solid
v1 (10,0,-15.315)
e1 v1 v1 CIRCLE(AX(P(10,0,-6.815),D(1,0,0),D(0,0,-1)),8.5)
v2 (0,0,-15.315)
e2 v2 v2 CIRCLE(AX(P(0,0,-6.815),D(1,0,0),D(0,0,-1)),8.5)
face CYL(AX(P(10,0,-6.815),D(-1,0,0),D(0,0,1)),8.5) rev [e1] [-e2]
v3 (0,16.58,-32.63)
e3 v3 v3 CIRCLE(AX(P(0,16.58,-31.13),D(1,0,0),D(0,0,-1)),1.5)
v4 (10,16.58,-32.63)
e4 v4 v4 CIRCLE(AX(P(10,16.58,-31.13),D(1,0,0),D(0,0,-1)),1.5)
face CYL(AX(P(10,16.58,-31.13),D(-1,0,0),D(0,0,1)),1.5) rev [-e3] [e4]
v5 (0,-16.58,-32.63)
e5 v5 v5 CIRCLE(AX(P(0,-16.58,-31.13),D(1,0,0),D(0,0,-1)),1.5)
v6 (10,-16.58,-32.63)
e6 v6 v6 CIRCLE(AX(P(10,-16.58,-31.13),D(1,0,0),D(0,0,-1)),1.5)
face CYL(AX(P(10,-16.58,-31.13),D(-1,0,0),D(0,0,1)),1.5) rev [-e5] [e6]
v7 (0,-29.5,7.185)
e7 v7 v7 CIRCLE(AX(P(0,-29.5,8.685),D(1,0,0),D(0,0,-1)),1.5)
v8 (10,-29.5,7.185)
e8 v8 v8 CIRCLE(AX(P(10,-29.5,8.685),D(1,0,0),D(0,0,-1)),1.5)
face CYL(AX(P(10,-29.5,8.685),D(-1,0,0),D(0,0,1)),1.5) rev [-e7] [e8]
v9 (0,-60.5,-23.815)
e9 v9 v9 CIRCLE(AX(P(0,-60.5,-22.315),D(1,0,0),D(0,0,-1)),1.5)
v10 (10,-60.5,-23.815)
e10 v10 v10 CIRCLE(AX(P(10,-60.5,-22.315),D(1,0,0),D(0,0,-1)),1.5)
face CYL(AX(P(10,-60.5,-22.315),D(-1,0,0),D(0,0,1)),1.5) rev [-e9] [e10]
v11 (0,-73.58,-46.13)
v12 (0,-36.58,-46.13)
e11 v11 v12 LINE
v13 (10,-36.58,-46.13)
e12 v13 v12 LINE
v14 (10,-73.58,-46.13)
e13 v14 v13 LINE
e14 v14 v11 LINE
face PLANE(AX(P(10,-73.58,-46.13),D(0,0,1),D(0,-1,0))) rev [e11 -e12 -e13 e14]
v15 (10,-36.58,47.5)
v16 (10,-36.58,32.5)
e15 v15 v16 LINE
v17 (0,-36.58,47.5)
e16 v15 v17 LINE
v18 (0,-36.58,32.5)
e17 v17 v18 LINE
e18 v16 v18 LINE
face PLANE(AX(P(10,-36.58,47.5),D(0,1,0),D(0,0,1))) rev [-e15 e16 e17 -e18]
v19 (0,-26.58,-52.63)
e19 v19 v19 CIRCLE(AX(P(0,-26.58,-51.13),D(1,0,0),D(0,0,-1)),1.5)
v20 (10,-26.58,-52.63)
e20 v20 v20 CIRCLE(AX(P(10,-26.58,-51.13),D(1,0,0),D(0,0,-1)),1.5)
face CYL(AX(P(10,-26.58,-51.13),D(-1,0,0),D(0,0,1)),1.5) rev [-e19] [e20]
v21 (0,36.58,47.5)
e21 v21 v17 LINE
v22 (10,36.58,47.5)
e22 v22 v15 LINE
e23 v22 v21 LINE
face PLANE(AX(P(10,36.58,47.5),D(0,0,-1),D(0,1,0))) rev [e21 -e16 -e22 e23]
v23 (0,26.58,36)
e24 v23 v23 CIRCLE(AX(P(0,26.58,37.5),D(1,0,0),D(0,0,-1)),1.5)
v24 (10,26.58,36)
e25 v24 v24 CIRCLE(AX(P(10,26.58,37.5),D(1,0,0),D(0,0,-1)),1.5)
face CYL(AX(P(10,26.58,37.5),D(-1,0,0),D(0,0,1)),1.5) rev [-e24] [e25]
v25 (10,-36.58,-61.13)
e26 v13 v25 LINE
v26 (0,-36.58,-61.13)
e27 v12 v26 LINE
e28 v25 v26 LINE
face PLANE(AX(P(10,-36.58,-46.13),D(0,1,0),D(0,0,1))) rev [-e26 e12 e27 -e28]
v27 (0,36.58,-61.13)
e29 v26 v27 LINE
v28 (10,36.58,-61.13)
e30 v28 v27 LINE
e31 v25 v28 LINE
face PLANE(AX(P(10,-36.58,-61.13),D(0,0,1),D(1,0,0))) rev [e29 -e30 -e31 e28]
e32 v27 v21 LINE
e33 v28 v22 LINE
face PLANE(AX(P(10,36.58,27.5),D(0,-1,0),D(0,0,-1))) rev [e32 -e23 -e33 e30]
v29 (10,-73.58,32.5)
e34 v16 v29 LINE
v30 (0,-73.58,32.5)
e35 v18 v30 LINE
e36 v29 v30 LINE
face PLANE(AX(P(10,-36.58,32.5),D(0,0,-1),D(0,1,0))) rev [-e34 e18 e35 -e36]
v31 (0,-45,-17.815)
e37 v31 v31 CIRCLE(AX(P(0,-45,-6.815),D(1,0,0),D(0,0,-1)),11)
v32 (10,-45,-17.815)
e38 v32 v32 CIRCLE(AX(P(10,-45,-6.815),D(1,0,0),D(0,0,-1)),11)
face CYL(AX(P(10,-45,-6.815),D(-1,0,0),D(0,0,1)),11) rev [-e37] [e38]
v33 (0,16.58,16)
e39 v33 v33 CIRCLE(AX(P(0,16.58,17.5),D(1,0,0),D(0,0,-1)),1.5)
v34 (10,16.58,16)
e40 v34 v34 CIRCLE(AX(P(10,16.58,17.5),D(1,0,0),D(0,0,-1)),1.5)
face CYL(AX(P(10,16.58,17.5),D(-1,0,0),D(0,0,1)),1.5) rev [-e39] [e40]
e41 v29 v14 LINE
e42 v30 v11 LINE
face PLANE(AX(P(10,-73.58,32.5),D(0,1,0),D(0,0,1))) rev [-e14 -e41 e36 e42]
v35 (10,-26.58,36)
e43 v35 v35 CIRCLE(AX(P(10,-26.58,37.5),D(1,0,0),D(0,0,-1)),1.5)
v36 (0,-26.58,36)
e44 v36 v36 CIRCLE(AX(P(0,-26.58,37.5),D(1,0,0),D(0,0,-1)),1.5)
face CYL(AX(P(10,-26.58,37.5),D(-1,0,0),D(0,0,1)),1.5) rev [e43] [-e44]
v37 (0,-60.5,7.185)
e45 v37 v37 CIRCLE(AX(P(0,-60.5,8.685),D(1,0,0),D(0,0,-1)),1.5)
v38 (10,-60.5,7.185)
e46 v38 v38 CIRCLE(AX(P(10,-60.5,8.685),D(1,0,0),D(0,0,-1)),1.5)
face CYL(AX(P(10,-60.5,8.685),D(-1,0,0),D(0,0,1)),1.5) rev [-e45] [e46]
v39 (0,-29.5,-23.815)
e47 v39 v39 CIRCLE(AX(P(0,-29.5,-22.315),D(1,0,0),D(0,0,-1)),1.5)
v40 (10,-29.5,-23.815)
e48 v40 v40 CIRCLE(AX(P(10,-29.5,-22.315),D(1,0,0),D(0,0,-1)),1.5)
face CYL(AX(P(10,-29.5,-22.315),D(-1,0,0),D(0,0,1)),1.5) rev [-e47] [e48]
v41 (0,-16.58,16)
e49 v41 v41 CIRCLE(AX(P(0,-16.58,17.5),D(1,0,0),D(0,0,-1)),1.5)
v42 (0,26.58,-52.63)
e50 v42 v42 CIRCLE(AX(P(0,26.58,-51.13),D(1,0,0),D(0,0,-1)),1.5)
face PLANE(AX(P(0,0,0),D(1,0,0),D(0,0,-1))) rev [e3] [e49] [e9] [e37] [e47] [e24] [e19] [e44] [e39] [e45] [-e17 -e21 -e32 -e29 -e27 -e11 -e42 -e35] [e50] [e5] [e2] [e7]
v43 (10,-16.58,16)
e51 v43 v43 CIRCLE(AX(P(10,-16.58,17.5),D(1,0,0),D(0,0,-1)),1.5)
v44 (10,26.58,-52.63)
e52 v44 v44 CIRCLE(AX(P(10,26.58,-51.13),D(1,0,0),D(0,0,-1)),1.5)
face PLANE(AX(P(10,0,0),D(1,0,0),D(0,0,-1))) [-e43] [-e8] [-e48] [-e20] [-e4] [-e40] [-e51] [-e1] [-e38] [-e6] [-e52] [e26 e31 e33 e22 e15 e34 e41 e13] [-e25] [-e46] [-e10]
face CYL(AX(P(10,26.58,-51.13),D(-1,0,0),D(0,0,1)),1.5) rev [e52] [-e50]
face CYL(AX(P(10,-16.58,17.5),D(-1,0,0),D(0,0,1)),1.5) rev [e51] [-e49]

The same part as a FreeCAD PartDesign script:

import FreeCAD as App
import Part
import Sketcher
from FreeCAD import Vector
Q = App.Units.Quantity

doc = App.newDocument("Part")
body = doc.addObject("PartDesign::Body", "Body")

# Sketch on YZ plane
sketch1 = doc.addObject("Sketcher::SketchObject", "Sketch")
body.addObject(sketch1)
sketch1.AttachmentSupport = (doc.YZ_Plane, [""])
sketch1.MapMode = "FlatFace"
sketch1.addGeometry(Part.LineSegment(Vector(36.6, 47.5, 0), Vector(-36.6, 47.5, 0)), False)
sketch1.addGeometry(Part.LineSegment(Vector(-36.6, 47.5, 0), Vector(-36.6, 32.5, 0)), False)
sketch1.addGeometry(Part.LineSegment(Vector(-36.6, 32.5, 0), Vector(-73.6, 32.5, 0)), False)
sketch1.addGeometry(Part.LineSegment(Vector(-73.6, 32.5, 0), Vector(-73.6, -46.1, 0)), False)
sketch1.addGeometry(Part.LineSegment(Vector(-73.6, -46.1, 0), Vector(-36.6, -46.1, 0)), False)
sketch1.addGeometry(Part.LineSegment(Vector(-36.6, -46.1, 0), Vector(-36.6, -61.1, 0)), False)
sketch1.addGeometry(Part.LineSegment(Vector(-36.6, -61.1, 0), Vector(36.6, -61.1, 0)), False)
sketch1.addGeometry(Part.LineSegment(Vector(36.6, -61.1, 0), Vector(36.6, 47.5, 0)), False)
sketch1.addGeometry(Part.Circle(Vector(-60.5, 8.7, 0), Vector(0, 0, 1), 1.5), False)
sketch1.addGeometry(Part.Circle(Vector(-26.6, 37.5, 0), Vector(0, 0, 1), 1.5), False)
sketch1.addGeometry(Part.Circle(Vector(-29.5, 8.7, 0), Vector(0, 0, 1), 1.5), False)
sketch1.addGeometry(Part.Circle(Vector(-60.5, -22.3, 0), Vector(0, 0, 1), 1.5), False)
sketch1.addGeometry(Part.Circle(Vector(-45, -6.8, 0), Vector(0, 0, 1), 11), False)
sketch1.addGeometry(Part.Circle(Vector(-29.5, -22.3, 0), Vector(0, 0, 1), 1.5), False)
sketch1.addGeometry(Part.Circle(Vector(-26.6, -51.1, 0), Vector(0, 0, 1), 1.5), False)
sketch1.addGeometry(Part.Circle(Vector(-16.6, 17.5, 0), Vector(0, 0, 1), 1.5), False)
sketch1.addGeometry(Part.Circle(Vector(16.6, 17.5, 0), Vector(0, 0, 1), 1.5), False)
sketch1.addGeometry(Part.Circle(Vector(26.6, 37.5, 0), Vector(0, 0, 1), 1.5), False)
sketch1.addGeometry(Part.Circle(Vector(0, -6.8, 0), Vector(0, 0, 1), 8.5), False)
sketch1.addGeometry(Part.Circle(Vector(-16.6, -31.1, 0), Vector(0, 0, 1), 1.5), False)
sketch1.addGeometry(Part.Circle(Vector(16.6, -31.1, 0), Vector(0, 0, 1), 1.5), False)
sketch1.addGeometry(Part.Circle(Vector(26.6, -51.1, 0), Vector(0, 0, 1), 1.5), False)
sketch1.addConstraint(Sketcher.Constraint("Coincident", 0, 2, 1, 1))
sketch1.addConstraint(Sketcher.Constraint("Coincident", 1, 2, 2, 1))
sketch1.addConstraint(Sketcher.Constraint("Coincident", 2, 2, 3, 1))
sketch1.addConstraint(Sketcher.Constraint("Coincident", 3, 2, 4, 1))
sketch1.addConstraint(Sketcher.Constraint("Coincident", 4, 2, 5, 1))
sketch1.addConstraint(Sketcher.Constraint("Coincident", 5, 2, 6, 1))
sketch1.addConstraint(Sketcher.Constraint("Coincident", 6, 2, 7, 1))
sketch1.addConstraint(Sketcher.Constraint("Coincident", 7, 2, 0, 1))
sketch1.addConstraint(Sketcher.Constraint("Horizontal", 0))
sketch1.addConstraint(Sketcher.Constraint("Vertical", 1))
sketch1.addConstraint(Sketcher.Constraint("Horizontal", 2))
sketch1.addConstraint(Sketcher.Constraint("Vertical", 3))
sketch1.addConstraint(Sketcher.Constraint("Horizontal", 4))
sketch1.addConstraint(Sketcher.Constraint("Vertical", 5))
sketch1.addConstraint(Sketcher.Constraint("Horizontal", 6))
sketch1.addConstraint(Sketcher.Constraint("Vertical", 7))
sketch1.addConstraint(Sketcher.Constraint("Equal", 8, 9))
sketch1.addConstraint(Sketcher.Constraint("Equal", 9, 10))
sketch1.addConstraint(Sketcher.Constraint("Equal", 10, 11))
sketch1.addConstraint(Sketcher.Constraint("Equal", 11, 13))
sketch1.addConstraint(Sketcher.Constraint("Equal", 13, 14))
sketch1.addConstraint(Sketcher.Constraint("Equal", 14, 15))
sketch1.addConstraint(Sketcher.Constraint("Equal", 15, 16))
sketch1.addConstraint(Sketcher.Constraint("Equal", 16, 17))
sketch1.addConstraint(Sketcher.Constraint("Equal", 17, 19))
sketch1.addConstraint(Sketcher.Constraint("Equal", 19, 20))
sketch1.addConstraint(Sketcher.Constraint("Equal", 20, 21))
sketch1.addConstraint(Sketcher.Constraint("Symmetric", 15, 3, 16, 3, -2))
sketch1.addConstraint(Sketcher.Constraint("Symmetric", 9, 3, 17, 3, -2))
sketch1.addConstraint(Sketcher.Constraint("Symmetric", 19, 3, 20, 3, -2))
sketch1.addConstraint(Sketcher.Constraint("Symmetric", 14, 3, 21, 3, -2))
sketch1.addConstraint(Sketcher.Constraint("PointOnObject", 18, 3, -2))
sketch1.addConstraint(Sketcher.Constraint("Horizontal", 8, 3, 10, 3))
sketch1.addConstraint(Sketcher.Constraint("Horizontal", 11, 3, 13, 3))
sketch1.addConstraint(Sketcher.Constraint("Horizontal", 12, 3, 18, 3))
sketch1.addConstraint(Sketcher.Constraint("Vertical", 8, 3, 11, 3))
sketch1.addConstraint(Sketcher.Constraint("Vertical", 10, 3, 13, 3))
sketch1.addConstraint(Sketcher.Constraint("Vertical", 9, 3, 14, 3))
sketch1.addConstraint(Sketcher.Constraint("Vertical", 15, 3, 19, 3))
sketch1.addConstraint(Sketcher.Constraint("Vertical", 1, 2, 4, 2))
sketch1.addConstraint(Sketcher.Constraint("Equal", 1, 5))
sketch1.addConstraint(Sketcher.Constraint("Diameter", 8, Q("3 mm")))
sketch1.addConstraint(Sketcher.Constraint("Diameter", 12, Q("22 mm")))
sketch1.addConstraint(Sketcher.Constraint("Diameter", 18, Q("17 mm")))
sketch1.addConstraint(Sketcher.Constraint("DistanceX", 2, 2, 2, 1, Q("37 mm")))
sketch1.addConstraint(Sketcher.Constraint("DistanceY", 1, 2, 1, 1, Q("15 mm")))
sketch1.addConstraint(Sketcher.Constraint("DistanceX", 12, 3, -1, 1, Q("45 mm")))
sketch1.addConstraint(Sketcher.Constraint("DistanceX", 8, 3, 10, 3, Q("31 mm")))
sketch1.addConstraint(Sketcher.Constraint("DistanceY", 11, 3, 8, 3, Q("31 mm")))
sketch1.addConstraint(Sketcher.Constraint("DistanceX", 9, 3, 15, 3, Q("10 mm")))
sketch1.addConstraint(Sketcher.Constraint("DistanceY", 15, 3, 9, 3, Q("20 mm")))
sketch1.addConstraint(Sketcher.Constraint("DistanceY", 14, 3, 19, 3, Q("20 mm")))
sketch1.addConstraint(Sketcher.Constraint("DistanceX", 0, 2, 9, 3, Q("10 mm")))
sketch1.addConstraint(Sketcher.Constraint("DistanceY", 9, 3, 0, 2, Q("10 mm")))
sketch1.addConstraint(Sketcher.Constraint("DistanceY", 14, 3, 3, 2, Q("5 mm")))
sketch1.addConstraint(Sketcher.Constraint("DistanceX", 21, 3, 6, 2, Q("10 mm")))
sketch1.addConstraint(Sketcher.Constraint("DistanceX", 0, 2, 0, 1, Q("73.16 mm")))
sketch1.addConstraint(Sketcher.Constraint("DistanceY", 3, 2, 3, 1, Q("78.63 mm")))
sketch1.addConstraint(Sketcher.Constraint("DistanceX", 8, 3, -1, 1, Q("60.5 mm")))
sketch1.addConstraint(Sketcher.Constraint("DistanceY", -1, 1, 9, 3, Q("37.5 mm")))
sketch1.addConstraint(Sketcher.Constraint("DistanceY", 12, 3, 8, 3, Q("15.5 mm")))
sketch1.addConstraint(Sketcher.Constraint("DistanceY", -1, 1, 8, 3, Q("8.685 mm")))
pad1 = doc.addObject("PartDesign::Pad", "Pad")
body.addObject(pad1)
pad1.Profile = sketch1
pad1.Length = 10

doc.recompute()
